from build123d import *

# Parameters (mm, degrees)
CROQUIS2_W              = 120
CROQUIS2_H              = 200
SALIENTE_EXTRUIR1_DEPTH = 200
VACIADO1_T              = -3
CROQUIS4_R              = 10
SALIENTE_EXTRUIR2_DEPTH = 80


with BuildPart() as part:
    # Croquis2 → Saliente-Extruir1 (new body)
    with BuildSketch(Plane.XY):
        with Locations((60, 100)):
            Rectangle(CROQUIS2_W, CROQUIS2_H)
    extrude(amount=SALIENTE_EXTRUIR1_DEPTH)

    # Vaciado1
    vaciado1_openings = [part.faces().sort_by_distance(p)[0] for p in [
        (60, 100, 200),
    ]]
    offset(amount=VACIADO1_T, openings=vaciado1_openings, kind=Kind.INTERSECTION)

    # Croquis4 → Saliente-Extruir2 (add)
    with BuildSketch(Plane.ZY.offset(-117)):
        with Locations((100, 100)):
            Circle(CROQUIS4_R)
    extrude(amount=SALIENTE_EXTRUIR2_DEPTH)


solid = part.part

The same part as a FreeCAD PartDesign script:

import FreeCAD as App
import Part
import Sketcher

V = App.Vector
Q = App.Units.Quantity


def faces_at(feature, points):
    """Names of the faces that lie closest to the given points."""
    faces = feature.Shape.Faces
    near = lambda p: min(range(len(faces)), key=lambda i: faces[i].distToShape(Part.Vertex(*p))[0])
    return sorted({f"Face{near(p) + 1}" for p in points})

doc = App.newDocument("Part")
params = doc.addObject("Spreadsheet::Sheet", "Params")
for row, (alias, value) in enumerate([
    ("sketch1_width", "120 mm"),
    ("sketch1_height", "200 mm"),
    ("pad1_length", "200 mm"),
    ("thickness_wall", "3 mm"),
    ("sketch2_diameter", "20 mm"),
    ("pad2_length", "80 mm"),
], start=1):
    params.set(f"A{row}", alias)
    params.set(f"B{row}", "=" + value)
    params.setAlias(f"B{row}", alias)

body = doc.addObject("PartDesign::Body", "Body")

# Sketch on XY plane
sketch1 = body.newObject("Sketcher::SketchObject", "Sketch")
sketch1.AttachmentSupport = (doc.getObject("XY_Plane"), [""])
sketch1.MapMode = "FlatFace"
sketch1.addGeometry([
    Part.LineSegment(V(0, 200, 0), V(0, 0, 0)),
    Part.LineSegment(V(0, 0, 0), V(120, 0, 0)),
    Part.LineSegment(V(120, 0, 0), V(120, 200, 0)),
    Part.LineSegment(V(120, 200, 0), V(0, 200, 0)),
], False)
sketch1.addConstraint([
    Sketcher.Constraint("Coincident", 0, 2, 1, 1),
    Sketcher.Constraint("Coincident", 1, 2, 2, 1),
    Sketcher.Constraint("Coincident", 2, 2, 3, 1),
    Sketcher.Constraint("Coincident", 3, 2, 0, 1),
    Sketcher.Constraint("Vertical", 0),
    Sketcher.Constraint("Horizontal", 1),
    Sketcher.Constraint("Vertical", 2),
    Sketcher.Constraint("Horizontal", 3),
    Sketcher.Constraint("Coincident", 0, 2, -1, 1),
    Sketcher.Constraint("DistanceX", 1, 1, 1, 2, Q("120 mm")),
    Sketcher.Constraint("DistanceY", 0, 2, 0, 1, Q("200 mm")),
])
sketch1.setExpression("Constraints[9]", "Params.sketch1_width")
sketch1.setExpression("Constraints[10]", "Params.sketch1_height")
pad1 = body.newObject("PartDesign::Pad", "Pad")
pad1.Profile = sketch1
pad1.setExpression("Length", "Params.pad1_length")
doc.recompute()

thickness = body.newObject("PartDesign::Thickness", "Thickness")
thickness.Base = (pad1, faces_at(pad1, [(60, 100, 200)]))
thickness.setExpression("Value", "Params.thickness_wall")
thickness.Reversed = True
thickness.Join = "Intersection"

# Sketch on YZ plane
sketch2 = body.newObject("Sketcher::SketchObject", "Sketch001")
sketch2.AttachmentSupport = (doc.getObject("YZ_Plane"), [""])
sketch2.MapMode = "FlatFace"
sketch2.AttachmentOffset = App.Placement(V(0, 0, 117), App.Rotation())
sketch2.addGeometry(Part.Circle(V(100, 100, 0), V(0, 0, 1), 10), False)
sketch2.addConstraint([
    Sketcher.Constraint("Diameter", 0, Q("20 mm")),
    Sketcher.Constraint("DistanceX", -1, 1, 0, 3, Q("100 mm")),
    Sketcher.Constraint("DistanceY", -1, 1, 0, 3, Q("100 mm")),
])
sketch2.setExpression("Constraints[0]", "Params.sketch2_diameter")
pad2 = body.newObject("PartDesign::Pad", "Pad001")
pad2.Profile = sketch2
pad2.setExpression("Length", "Params.pad2_length")
pad2.Reversed = True

doc.recompute()
